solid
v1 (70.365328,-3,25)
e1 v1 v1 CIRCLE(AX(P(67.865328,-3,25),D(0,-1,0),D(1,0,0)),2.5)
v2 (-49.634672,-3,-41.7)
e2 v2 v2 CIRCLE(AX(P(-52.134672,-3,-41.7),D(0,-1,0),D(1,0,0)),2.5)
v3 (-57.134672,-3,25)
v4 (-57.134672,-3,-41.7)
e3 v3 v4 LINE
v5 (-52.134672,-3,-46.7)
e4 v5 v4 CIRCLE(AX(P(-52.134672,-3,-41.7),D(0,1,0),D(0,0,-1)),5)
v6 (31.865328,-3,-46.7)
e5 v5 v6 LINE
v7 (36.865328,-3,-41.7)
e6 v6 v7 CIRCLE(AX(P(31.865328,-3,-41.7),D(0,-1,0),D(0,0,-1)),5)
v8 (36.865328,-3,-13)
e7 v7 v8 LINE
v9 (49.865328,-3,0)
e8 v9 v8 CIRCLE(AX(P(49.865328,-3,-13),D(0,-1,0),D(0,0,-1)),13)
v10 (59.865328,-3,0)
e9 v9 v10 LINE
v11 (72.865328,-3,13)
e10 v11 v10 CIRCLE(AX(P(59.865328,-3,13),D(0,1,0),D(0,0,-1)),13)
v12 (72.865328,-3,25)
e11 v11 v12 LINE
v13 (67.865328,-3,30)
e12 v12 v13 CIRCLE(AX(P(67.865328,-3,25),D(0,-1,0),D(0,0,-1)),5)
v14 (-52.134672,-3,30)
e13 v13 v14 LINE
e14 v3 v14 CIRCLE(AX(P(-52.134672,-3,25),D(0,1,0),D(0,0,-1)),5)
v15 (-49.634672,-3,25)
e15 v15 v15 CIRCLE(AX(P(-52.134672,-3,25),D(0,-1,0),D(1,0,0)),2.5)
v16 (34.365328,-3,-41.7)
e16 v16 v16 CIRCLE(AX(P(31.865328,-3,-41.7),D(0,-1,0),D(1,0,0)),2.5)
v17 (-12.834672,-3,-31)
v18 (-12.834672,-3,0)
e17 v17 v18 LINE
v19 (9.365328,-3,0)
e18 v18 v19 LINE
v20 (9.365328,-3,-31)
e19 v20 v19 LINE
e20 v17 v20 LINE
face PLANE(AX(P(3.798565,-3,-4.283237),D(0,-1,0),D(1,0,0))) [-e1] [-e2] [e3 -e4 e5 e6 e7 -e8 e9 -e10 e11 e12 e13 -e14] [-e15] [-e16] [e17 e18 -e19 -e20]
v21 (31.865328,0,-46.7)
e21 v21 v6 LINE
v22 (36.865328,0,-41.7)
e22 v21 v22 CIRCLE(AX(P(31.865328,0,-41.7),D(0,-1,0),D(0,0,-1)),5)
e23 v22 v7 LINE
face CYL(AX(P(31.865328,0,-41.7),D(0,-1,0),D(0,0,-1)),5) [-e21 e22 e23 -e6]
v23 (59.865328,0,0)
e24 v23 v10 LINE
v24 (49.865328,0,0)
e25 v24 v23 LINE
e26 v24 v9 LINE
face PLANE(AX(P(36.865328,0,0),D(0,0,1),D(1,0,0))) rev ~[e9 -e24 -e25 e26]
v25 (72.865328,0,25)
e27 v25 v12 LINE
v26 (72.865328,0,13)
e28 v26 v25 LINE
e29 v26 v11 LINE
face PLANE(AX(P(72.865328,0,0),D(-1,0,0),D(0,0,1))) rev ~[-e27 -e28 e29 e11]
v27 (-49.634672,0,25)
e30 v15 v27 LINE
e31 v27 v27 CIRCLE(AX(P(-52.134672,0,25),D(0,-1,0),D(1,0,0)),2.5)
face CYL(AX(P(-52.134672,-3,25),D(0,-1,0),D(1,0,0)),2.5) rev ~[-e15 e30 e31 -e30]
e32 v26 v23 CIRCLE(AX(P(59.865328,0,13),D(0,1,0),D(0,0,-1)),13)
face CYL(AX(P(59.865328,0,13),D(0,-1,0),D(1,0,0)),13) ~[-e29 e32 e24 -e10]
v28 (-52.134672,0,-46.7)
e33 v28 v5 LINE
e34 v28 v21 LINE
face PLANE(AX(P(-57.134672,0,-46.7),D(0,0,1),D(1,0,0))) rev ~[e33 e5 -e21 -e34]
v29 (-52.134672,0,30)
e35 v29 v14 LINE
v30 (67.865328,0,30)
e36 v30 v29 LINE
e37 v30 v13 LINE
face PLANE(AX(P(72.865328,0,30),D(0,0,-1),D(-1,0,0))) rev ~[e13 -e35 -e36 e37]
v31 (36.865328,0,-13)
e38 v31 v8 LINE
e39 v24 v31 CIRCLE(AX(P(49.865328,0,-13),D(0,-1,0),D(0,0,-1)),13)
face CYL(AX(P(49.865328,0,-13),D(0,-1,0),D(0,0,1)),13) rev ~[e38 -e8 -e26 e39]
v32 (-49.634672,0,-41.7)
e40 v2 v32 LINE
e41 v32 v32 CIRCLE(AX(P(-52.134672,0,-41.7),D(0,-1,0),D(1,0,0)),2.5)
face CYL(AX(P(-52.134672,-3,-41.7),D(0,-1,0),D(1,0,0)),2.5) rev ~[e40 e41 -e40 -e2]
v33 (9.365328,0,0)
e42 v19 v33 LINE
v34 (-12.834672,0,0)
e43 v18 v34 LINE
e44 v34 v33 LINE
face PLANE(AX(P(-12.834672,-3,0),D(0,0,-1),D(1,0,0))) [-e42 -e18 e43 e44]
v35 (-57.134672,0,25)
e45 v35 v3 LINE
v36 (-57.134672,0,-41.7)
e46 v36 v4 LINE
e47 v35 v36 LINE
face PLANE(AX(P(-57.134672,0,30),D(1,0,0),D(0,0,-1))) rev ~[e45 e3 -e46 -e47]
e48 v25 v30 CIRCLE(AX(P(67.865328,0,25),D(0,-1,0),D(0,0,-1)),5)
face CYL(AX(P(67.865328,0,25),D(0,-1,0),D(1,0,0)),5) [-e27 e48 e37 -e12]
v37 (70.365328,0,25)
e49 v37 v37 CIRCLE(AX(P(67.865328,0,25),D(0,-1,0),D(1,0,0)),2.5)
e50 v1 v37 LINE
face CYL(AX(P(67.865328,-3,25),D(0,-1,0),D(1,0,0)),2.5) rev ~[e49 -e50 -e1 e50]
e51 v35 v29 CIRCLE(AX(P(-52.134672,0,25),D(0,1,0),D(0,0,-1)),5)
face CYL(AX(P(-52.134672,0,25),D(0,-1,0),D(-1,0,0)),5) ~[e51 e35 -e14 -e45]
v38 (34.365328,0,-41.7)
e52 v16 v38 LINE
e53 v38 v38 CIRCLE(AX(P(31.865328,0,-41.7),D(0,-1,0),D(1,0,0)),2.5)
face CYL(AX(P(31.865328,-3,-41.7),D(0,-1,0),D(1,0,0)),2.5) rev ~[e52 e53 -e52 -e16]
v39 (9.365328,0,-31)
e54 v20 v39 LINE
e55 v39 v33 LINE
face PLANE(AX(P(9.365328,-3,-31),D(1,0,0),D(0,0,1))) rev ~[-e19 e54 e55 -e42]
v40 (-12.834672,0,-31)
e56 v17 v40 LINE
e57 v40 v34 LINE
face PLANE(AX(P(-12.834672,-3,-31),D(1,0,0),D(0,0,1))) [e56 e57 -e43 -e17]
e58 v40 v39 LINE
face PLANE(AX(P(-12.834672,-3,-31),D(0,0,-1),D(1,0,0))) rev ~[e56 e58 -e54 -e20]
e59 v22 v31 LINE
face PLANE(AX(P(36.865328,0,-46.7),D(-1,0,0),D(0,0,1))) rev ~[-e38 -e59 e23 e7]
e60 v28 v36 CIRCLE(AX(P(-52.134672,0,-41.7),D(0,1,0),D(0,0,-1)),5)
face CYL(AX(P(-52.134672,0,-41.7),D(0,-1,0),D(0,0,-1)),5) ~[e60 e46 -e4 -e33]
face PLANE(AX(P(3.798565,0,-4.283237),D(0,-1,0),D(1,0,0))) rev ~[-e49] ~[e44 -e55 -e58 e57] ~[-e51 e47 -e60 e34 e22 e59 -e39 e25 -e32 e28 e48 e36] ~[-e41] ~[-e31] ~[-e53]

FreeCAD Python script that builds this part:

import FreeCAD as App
import Part
import Sketcher
from FreeCAD import Vector


def edges_at(feature, points):
    """Names of the edges that pass closest to the given points."""
    edges = feature.Shape.Edges
    near = lambda p: min(range(len(edges)), key=lambda i: edges[i].distToShape(Part.Vertex(*p))[0])
    return sorted({f"Edge{near(p) + 1}" for p in points})


def add_polygon(sketch, points):
    """Adds a closed chain of lines whose ends are joined by coincident constraints."""
    first, n = sketch.GeometryCount, len(points)
    for a, b in zip(points, points[1:] + points[:1]):
        sketch.addGeometry(Part.LineSegment(App.Vector(*a, 0), App.Vector(*b, 0)), False)
    for i in range(n):
        sketch.addConstraint(Sketcher.Constraint("Coincident", first + i, 2, first + (i + 1) % n, 1))

doc = App.newDocument("Part")
body = doc.addObject("PartDesign::Body", "Body")

sketch1 = doc.addObject("Sketcher::SketchObject", "Sketch")
body.addObject(sketch1)
sketch1.AttachmentSupport = (doc.XZ_Plane, [""])
sketch1.MapMode = "FlatFace"
add_polygon(sketch1, [(72.865328, 30), (-57.134672, 30), (-57.134672, -46.7), (36.865328, -46.7), (36.865328, 0), (72.865328, 0)])
sketch1.addConstraint([
    Sketcher.Constraint("Horizontal", 0),
    Sketcher.Constraint("Vertical", 1),
    Sketcher.Constraint("Horizontal", 2),
    Sketcher.Constraint("Vertical", 3),
    Sketcher.Constraint("Horizontal", 4),
    Sketcher.Constraint("Vertical", 5),
    Sketcher.Constraint("PointOnObject", 3, 2, -1),
    Sketcher.Constraint("DistanceX", 0, 2, 0, 1, 130.0),
    Sketcher.Constraint("DistanceX", 2, 1, 2, 2, 94.0),
    Sketcher.Constraint("DistanceY", 5, 1, 5, 2, 30.0),
    Sketcher.Constraint("DistanceY", 1, 2, 1, 1, 76.7),
    Sketcher.Constraint("DistanceX", -1, 1, 4, 2, 72.865328),
])
pad1 = doc.addObject("PartDesign::Pad", "Pad")
body.addObject(pad1)
pad1.Profile = sketch1
pad1.Length = 3

sketch2 = doc.addObject("Sketcher::SketchObject", "Sketch001")
body.addObject(sketch2)
sketch2.AttachmentSupport = (doc.XZ_Plane, [""])
sketch2.MapMode = "FlatFace"
sketch2.AttachmentOffset = App.Placement(Vector(0, 0, 3), App.Rotation())
add_polygon(sketch2, [(-12.834672, 0), (-12.834672, -31), (9.365328, -31), (9.365328, 0)])
sketch2.addConstraint([
    Sketcher.Constraint("Vertical", 0),
    Sketcher.Constraint("Horizontal", 1),
    Sketcher.Constraint("Vertical", 2),
    Sketcher.Constraint("Horizontal", 3),
    Sketcher.Constraint("PointOnObject", 2, 2, -1),
    Sketcher.Constraint("DistanceY", 0, 2, 0, 1, 31.0),
    Sketcher.Constraint("DistanceX", 1, 1, 1, 2, 22.2),
    Sketcher.Constraint("DistanceX", 0, 2, -1, 1, 12.834672),
])
pocket1 = doc.addObject("PartDesign::Pocket", "Pocket")
body.addObject(pocket1)
pocket1.Profile = sketch2
pocket1.Length = 25
doc.recompute()

fillet = doc.addObject("PartDesign::Fillet", "Fillet")
body.addObject(fillet)
fillet.Base = (pocket1, edges_at(pocket1, [(72.865, -1.5, 0)]))
fillet.Radius = 13
doc.recompute()

fillet2 = doc.addObject("PartDesign::Fillet", "Fillet001")
body.addObject(fillet2)
fillet2.Base = (fillet, edges_at(fillet, [(36.865, -1.5, 0)]))
fillet2.Radius = 13
doc.recompute()

fillet3 = doc.addObject("PartDesign::Fillet", "Fillet002")
body.addObject(fillet3)
fillet3.Base = (fillet2, edges_at(fillet2, [(72.865, -1.5, 30)]))
fillet3.Radius = 5
doc.recompute()

fillet4 = doc.addObject("PartDesign::Fillet", "Fillet003")
body.addObject(fillet4)
fillet4.Base = (fillet3, edges_at(fillet3, [(36.865, -1.5, -46.7)]))
fillet4.Radius = 5
doc.recompute()

fillet5 = doc.addObject("PartDesign::Fillet", "Fillet004")
body.addObject(fillet5)
fillet5.Base = (fillet4, edges_at(fillet4, [(-57.135, -1.5, -46.7)]))
fillet5.Radius = 5
doc.recompute()

fillet6 = doc.addObject("PartDesign::Fillet", "Fillet005")
body.addObject(fillet6)
fillet6.Base = (fillet5, edges_at(fillet5, [(-57.135, -1.5, 30)]))
fillet6.Radius = 5

sketch3 = doc.addObject("Sketcher::SketchObject", "Sketch002")
body.addObject(sketch3)
sketch3.AttachmentSupport = (doc.XZ_Plane, [""])
sketch3.MapMode = "FlatFace"
sketch3.AttachmentOffset = App.Placement(Vector(0, 0, 3), App.Rotation())
sketch3.addGeometry(Part.Circle(Vector(-52.134672, 25, 0), Vector(0, 0, 1), 2.5), False)
sketch3.addConstraint([
    Sketcher.Constraint("Diameter", 0, 5.0),
    Sketcher.Constraint("DistanceY", -1, 1, 0, 3, 25.0),
    Sketcher.Constraint("DistanceX", 0, 3, -1, 1, 52.134672),
])
pocket2 = doc.addObject("PartDesign::Pocket", "Pocket001")
body.addObject(pocket2)
pocket2.Profile = sketch3
pocket2.Length = 25

sketch4 = doc.addObject("Sketcher::SketchObject", "Sketch003")
body.addObject(sketch4)
sketch4.AttachmentSupport = (doc.XZ_Plane, [""])
sketch4.MapMode = "FlatFace"
sketch4.AttachmentOffset = App.Placement(Vector(0, 0, 3), App.Rotation())
sketch4.addGeometry(Part.Circle(Vector(67.865328, 25, 0), Vector(0, 0, 1), 2.5), False)
sketch4.addConstraint([
    Sketcher.Constraint("Diameter", 0, 5.0),
    Sketcher.Constraint("DistanceY", -1, 1, 0, 3, 25.0),
    Sketcher.Constraint("DistanceX", -1, 1, 0, 3, 67.865328),
])
pocket3 = doc.addObject("PartDesign::Pocket", "Pocket002")
body.addObject(pocket3)
pocket3.Profile = sketch4
pocket3.Length = 25

sketch5 = doc.addObject("Sketcher::SketchObject", "Sketch004")
body.addObject(sketch5)
sketch5.AttachmentSupport = (doc.XZ_Plane, [""])
sketch5.MapMode = "FlatFace"
sketch5.AttachmentOffset = App.Placement(Vector(0, 0, 3), App.Rotation())
sketch5.addGeometry(Part.Circle(Vector(-52.134672, -41.7, 0), Vector(0, 0, 1), 2.5), False)
sketch5.addConstraint([
    Sketcher.Constraint("Diameter", 0, 5.0),
    Sketcher.Constraint("DistanceY", 0, 3, -1, 1, 41.7),
    Sketcher.Constraint("DistanceX", 0, 3, -1, 1, 52.134672),
])
pocket4 = doc.addObject("PartDesign::Pocket", "Pocket003")
body.addObject(pocket4)
pocket4.Profile = sketch5
pocket4.Length = 25

sketch6 = doc.addObject("Sketcher::SketchObject", "Sketch005")
body.addObject(sketch6)
sketch6.AttachmentSupport = (doc.XZ_Plane, [""])
sketch6.MapMode = "FlatFace"
sketch6.AttachmentOffset = App.Placement(Vector(0, 0, 3), App.Rotation())
sketch6.addGeometry(Part.Circle(Vector(31.865328, -41.7, 0), Vector(0, 0, 1), 2.5), False)
sketch6.addConstraint([
    Sketcher.Constraint("Diameter", 0, 5.0),
    Sketcher.Constraint("DistanceY", 0, 3, -1, 1, 41.7),
    Sketcher.Constraint("DistanceX", -1, 1, 0, 3, 31.865328),
])
pocket5 = doc.addObject("PartDesign::Pocket", "Pocket004")
body.addObject(pocket5)
pocket5.Profile = sketch6
pocket5.Length = 25

doc.recompute()
